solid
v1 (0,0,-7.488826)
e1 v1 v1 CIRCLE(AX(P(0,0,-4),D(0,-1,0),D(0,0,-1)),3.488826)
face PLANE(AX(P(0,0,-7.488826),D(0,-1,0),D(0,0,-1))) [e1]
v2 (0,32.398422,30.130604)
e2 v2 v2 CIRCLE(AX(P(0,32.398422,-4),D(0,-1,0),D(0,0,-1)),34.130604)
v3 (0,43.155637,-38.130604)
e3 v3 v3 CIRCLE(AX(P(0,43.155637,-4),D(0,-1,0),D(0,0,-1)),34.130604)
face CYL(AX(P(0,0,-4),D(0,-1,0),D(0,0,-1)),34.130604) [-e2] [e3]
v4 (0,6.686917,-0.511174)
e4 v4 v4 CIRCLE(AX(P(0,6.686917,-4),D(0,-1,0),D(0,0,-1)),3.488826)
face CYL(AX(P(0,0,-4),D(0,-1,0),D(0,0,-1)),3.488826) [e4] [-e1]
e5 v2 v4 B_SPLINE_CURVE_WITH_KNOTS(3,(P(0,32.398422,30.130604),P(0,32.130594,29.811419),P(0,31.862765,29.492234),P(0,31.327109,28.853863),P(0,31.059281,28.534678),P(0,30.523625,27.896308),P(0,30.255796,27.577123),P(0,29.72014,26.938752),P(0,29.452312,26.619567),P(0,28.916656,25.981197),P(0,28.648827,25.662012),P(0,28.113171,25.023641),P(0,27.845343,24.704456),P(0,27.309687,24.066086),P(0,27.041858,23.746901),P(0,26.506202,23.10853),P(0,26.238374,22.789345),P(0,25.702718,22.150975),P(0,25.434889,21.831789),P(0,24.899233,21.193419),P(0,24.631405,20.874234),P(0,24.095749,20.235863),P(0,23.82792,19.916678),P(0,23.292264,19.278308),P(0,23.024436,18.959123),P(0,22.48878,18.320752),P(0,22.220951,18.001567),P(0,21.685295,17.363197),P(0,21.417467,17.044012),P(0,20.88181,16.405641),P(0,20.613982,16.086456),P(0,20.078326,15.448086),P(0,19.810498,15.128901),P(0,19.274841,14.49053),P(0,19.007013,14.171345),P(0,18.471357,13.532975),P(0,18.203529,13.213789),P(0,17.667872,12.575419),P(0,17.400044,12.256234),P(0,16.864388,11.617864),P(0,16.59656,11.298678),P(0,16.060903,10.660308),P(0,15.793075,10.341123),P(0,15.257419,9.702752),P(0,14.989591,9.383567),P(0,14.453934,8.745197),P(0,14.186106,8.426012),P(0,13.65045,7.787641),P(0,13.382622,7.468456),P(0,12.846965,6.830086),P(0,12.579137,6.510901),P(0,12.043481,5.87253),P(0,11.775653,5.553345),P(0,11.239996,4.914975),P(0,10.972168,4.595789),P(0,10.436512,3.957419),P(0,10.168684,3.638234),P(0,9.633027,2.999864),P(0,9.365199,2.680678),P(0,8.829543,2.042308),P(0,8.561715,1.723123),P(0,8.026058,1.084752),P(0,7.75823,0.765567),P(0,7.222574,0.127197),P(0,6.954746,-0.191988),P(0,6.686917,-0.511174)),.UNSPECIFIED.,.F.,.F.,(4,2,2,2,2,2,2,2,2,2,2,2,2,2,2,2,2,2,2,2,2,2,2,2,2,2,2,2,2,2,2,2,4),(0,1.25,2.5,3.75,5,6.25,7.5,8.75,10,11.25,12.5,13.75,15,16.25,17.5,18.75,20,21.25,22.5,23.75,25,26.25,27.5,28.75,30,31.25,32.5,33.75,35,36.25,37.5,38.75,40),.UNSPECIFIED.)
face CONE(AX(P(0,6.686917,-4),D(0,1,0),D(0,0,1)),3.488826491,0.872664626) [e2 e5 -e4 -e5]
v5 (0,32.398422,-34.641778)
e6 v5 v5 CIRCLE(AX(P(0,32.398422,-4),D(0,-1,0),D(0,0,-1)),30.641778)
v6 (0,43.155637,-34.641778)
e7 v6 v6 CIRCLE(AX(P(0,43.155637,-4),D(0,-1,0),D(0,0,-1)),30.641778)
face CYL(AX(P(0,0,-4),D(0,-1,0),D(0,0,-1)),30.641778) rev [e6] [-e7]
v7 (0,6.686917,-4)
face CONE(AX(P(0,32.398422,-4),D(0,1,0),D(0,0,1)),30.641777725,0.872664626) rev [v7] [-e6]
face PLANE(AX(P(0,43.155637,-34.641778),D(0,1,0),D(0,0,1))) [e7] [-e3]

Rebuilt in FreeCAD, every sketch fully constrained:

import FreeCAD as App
import Part
import Sketcher
Q = App.Units.Quantity

doc = App.newDocument("Part")
body = doc.addObject("PartDesign::Body", "Body")

# Sketch on YZ plane
sketch1 = body.newObject("Sketcher::SketchObject", "Sketch")
sketch1.AttachmentSupport = (doc.getObject("YZ_Plane"), [""])
sketch1.MapMode = "FlatFace"
sketch1.addGeometry([
    Part.LineSegment(App.Vector(6.686917, -4, 0), App.Vector(0, -4, 0)),  # 0
    Part.LineSegment(App.Vector(0, -4, 0), App.Vector(0, -7.488826, 0)),  # 1
    Part.LineSegment(App.Vector(0, -7.488826, 0), App.Vector(6.686917, -7.488826, 0)),  # 2
    Part.LineSegment(App.Vector(6.686917, -7.488826, 0), App.Vector(32.398422, -38.130604, 0)),  # 3
    Part.LineSegment(App.Vector(32.398422, -38.130604, 0), App.Vector(43.155637, -38.130604, 0)),  # 4
    Part.LineSegment(App.Vector(43.155637, -38.130604, 0), App.Vector(43.155637, -34.641778, 0)),  # 5
    Part.LineSegment(App.Vector(43.155637, -34.641778, 0), App.Vector(32.398422, -34.641778, 0)),  # 6
    Part.LineSegment(App.Vector(32.398422, -34.641778, 0), App.Vector(6.686917, -4, 0)),  # 7
], False)
sketch1.addGeometry(Part.LineSegment(App.Vector(0, -4, 0), App.Vector(43.155637, -4, 0)), True)  # axis
sketch1.addConstraint([
    Sketcher.Constraint("Coincident", 0, 2, 1, 1),
    Sketcher.Constraint("Coincident", 1, 2, 2, 1),
    Sketcher.Constraint("Coincident", 2, 2, 3, 1),
    Sketcher.Constraint("Coincident", 3, 2, 4, 1),
    Sketcher.Constraint("Coincident", 4, 2, 5, 1),
    Sketcher.Constraint("Coincident", 5, 2, 6, 1),
    Sketcher.Constraint("Coincident", 6, 2, 7, 1),
    Sketcher.Constraint("Coincident", 7, 2, 0, 1),
    Sketcher.Constraint("Horizontal", 0),
    Sketcher.Constraint("Vertical", 1),
    Sketcher.Constraint("Horizontal", 2),
    Sketcher.Constraint("Horizontal", 4),
    Sketcher.Constraint("Vertical", 5),
    Sketcher.Constraint("Horizontal", 6),
    Sketcher.Constraint("Horizontal", 8),
    Sketcher.Constraint("Coincident", 8, 1, 0, 2),
    Sketcher.Constraint("PointOnObject", 0, 2, -2),
    Sketcher.Constraint("Parallel", 3, 7),
    Sketcher.Constraint("Vertical", 3, 2, 6, 2),
    Sketcher.Constraint("Vertical", 2, 2, 7, 2),
    Sketcher.Constraint("Vertical", 5, 2, 8, 2),
    Sketcher.Constraint("Angle", 3, Q("-50 deg")),
    Sketcher.Constraint("Distance", 3, 40.0),
    Sketcher.Constraint("DistanceY", 0, 2, -1, 1, 4.0),
    Sketcher.Constraint("DistanceX", 0, 2, 0, 1, 6.686917),
    Sketcher.Constraint("DistanceX", 4, 1, 4, 2, 10.757215),
    Sketcher.Constraint("DistanceY", 1, 2, 1, 1, 3.488826),
])
revolution = body.newObject("PartDesign::Revolution", "Revolution")
revolution.Profile = sketch1
revolution.ReferenceAxis = (sketch1, ["Axis0"])
revolution.Angle = 360

doc.recompute()
